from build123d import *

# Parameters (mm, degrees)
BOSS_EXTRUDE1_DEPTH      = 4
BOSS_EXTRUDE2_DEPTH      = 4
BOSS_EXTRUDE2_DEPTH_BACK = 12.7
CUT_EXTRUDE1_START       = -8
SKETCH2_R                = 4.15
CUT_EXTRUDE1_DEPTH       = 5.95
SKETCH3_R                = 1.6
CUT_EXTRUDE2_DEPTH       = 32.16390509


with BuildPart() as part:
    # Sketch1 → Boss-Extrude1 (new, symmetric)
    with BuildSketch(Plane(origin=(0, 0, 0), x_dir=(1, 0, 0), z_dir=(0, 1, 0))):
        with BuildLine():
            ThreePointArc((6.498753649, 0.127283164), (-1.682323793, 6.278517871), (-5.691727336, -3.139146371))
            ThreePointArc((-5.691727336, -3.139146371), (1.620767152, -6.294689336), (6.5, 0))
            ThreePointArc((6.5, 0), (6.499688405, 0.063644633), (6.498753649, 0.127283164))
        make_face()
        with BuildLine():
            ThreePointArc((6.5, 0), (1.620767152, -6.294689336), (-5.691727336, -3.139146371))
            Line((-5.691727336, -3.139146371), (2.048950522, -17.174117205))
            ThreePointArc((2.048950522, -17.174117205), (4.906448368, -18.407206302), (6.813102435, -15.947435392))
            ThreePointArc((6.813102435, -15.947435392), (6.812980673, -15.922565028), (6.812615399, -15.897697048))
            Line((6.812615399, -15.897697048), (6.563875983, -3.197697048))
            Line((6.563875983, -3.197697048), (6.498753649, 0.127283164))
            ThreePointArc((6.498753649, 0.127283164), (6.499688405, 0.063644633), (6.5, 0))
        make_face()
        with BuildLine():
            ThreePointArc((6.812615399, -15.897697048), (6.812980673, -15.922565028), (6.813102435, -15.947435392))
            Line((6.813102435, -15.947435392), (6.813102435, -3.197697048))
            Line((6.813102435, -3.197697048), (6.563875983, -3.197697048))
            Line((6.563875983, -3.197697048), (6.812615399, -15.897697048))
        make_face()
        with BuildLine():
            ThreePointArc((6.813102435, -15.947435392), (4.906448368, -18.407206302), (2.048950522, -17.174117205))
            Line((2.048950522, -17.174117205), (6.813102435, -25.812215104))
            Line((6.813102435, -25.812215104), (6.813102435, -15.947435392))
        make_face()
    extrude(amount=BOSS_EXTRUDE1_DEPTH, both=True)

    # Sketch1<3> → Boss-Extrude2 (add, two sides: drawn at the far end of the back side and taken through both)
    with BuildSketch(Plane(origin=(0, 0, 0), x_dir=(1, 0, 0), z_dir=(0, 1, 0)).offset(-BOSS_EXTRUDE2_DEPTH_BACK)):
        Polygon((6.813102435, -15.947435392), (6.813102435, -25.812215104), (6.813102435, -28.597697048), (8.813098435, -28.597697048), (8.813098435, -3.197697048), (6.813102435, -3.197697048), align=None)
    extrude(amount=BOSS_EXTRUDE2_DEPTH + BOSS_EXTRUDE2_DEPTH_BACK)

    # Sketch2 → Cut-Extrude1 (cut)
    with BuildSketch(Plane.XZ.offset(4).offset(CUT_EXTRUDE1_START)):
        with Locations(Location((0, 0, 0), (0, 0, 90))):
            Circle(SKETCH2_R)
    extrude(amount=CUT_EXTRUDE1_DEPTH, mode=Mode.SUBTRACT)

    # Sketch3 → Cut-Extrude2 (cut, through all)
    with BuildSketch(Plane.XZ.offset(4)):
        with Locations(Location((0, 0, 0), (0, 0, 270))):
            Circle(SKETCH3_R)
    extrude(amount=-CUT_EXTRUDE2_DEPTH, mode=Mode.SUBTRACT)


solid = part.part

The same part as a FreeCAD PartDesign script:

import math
import FreeCAD as App
import Part
import Sketcher
Q = App.Units.Quantity

doc = App.newDocument("Part")
body = doc.addObject("PartDesign::Body", "Body")

sketch1 = body.newObject("Sketcher::SketchObject", "Sketch")
sketch1.AttachmentSupport = (doc.getObject("XZ_Plane"), [""])
sketch1.MapMode = "FlatFace"
sketch1.addGeometry([
    Part.ArcOfCircle(Part.Circle(App.Vector(0, 0, 0), App.Vector(0, 0, 1), 6.5), math.radians(151), math.radians(359)),
    Part.LineSegment(App.Vector(-5.69, 3.14, 0), App.Vector(2.05, 17.17, 0)),
    Part.LineSegment(App.Vector(2.05, 17.17, 0), App.Vector(6.81, 25.81, 0)),
    Part.LineSegment(App.Vector(6.81, 25.81, 0), App.Vector(6.81, 3.2, 0)),
    Part.LineSegment(App.Vector(6.81, 3.2, 0), App.Vector(6.56, 3.2, 0)),
    Part.LineSegment(App.Vector(6.56, 3.2, 0), App.Vector(6.5, -0.13, 0)),
], False)
sketch1.addConstraint([
    Sketcher.Constraint("Tangent", 0, 1, 1, 1),
    Sketcher.Constraint("Coincident", 1, 2, 2, 1),
    Sketcher.Constraint("Coincident", 2, 2, 3, 1),
    Sketcher.Constraint("Coincident", 3, 2, 4, 1),
    Sketcher.Constraint("Coincident", 4, 2, 5, 1),
    Sketcher.Constraint("Tangent", 5, 2, 0, 2),
    Sketcher.Constraint("Vertical", 3),
    Sketcher.Constraint("Horizontal", 4),
    Sketcher.Constraint("Coincident", 0, 3, -1, 1),
    Sketcher.Constraint("Parallel", 1, 2),
    Sketcher.Constraint("Radius", 0, Q("6.5 mm")),
    Sketcher.Constraint("DistanceY", 3, 2, 3, 1, Q("22.614518 mm")),
    Sketcher.Constraint("DistanceY", 5, 2, 1, 2, Q("17.3014 mm")),
    Sketcher.Constraint("Distance", 2, Q("9.86478 mm")),
    Sketcher.Constraint("DistanceX", 4, 2, 4, 1, Q("0.249226 mm")),
    Sketcher.Constraint("DistanceX", -1, 1, 1, 2, Q("2.048951 mm")),
])
pad1 = body.newObject("PartDesign::Pad", "Pad")
pad1.Profile = sketch1
pad1.Length = 8
pad1.Midplane = True

sketch2 = body.newObject("Sketcher::SketchObject", "Sketch001")
sketch2.AttachmentSupport = (doc.getObject("XZ_Plane"), [""])
sketch2.MapMode = "FlatFace"
sketch2.addGeometry([
    Part.LineSegment(App.Vector(6.8, 28.6, 0), App.Vector(8.8, 28.6, 0)),
    Part.LineSegment(App.Vector(8.8, 28.6, 0), App.Vector(8.8, 3.2, 0)),
    Part.LineSegment(App.Vector(8.8, 3.2, 0), App.Vector(6.8, 3.2, 0)),
    Part.LineSegment(App.Vector(6.8, 3.2, 0), App.Vector(6.8, 28.6, 0)),
], False)
sketch2.addConstraint([
    Sketcher.Constraint("Coincident", 0, 2, 1, 1),
    Sketcher.Constraint("Coincident", 1, 2, 2, 1),
    Sketcher.Constraint("Coincident", 2, 2, 3, 1),
    Sketcher.Constraint("Coincident", 3, 2, 0, 1),
    Sketcher.Constraint("Horizontal", 0),
    Sketcher.Constraint("Vertical", 1),
    Sketcher.Constraint("Horizontal", 2),
    Sketcher.Constraint("Vertical", 3),
    Sketcher.Constraint("DistanceY", 1, 2, 1, 1, Q("25.4 mm")),
    Sketcher.Constraint("DistanceX", -1, 1, 0, 2, Q("8.813098 mm")),
    Sketcher.Constraint("DistanceX", 0, 1, 0, 2, Q("1.999996 mm")),
    Sketcher.Constraint("DistanceY", -1, 1, 0, 2, Q("28.597697 mm")),
])
pad2 = body.newObject("PartDesign::Pad", "Pad001")
pad2.Profile = sketch2
pad2.Type = "TwoLengths"
pad2.Length = 4
pad2.Length2 = 12.7
pad2.Reversed = True

sketch3 = body.newObject("Sketcher::SketchObject", "Sketch002")
sketch3.AttachmentSupport = (doc.getObject("XZ_Plane"), [""])
sketch3.MapMode = "FlatFace"
sketch3.AttachmentOffset = App.Placement(App.Vector(0, 0, -4), App.Rotation())
sketch3.addGeometry(Part.Circle(App.Vector(0, 0, 0), App.Vector(0, 0, 1), 4.2), False)
sketch3.addConstraint([
    Sketcher.Constraint("Coincident", 0, 3, -1, 1),
    Sketcher.Constraint("Diameter", 0, Q("8.3 mm")),
])
pocket1 = body.newObject("PartDesign::Pocket", "Pocket")
pocket1.Profile = sketch3
pocket1.Length = 5.95
pocket1.Reversed = True

sketch4 = body.newObject("Sketcher::SketchObject", "Sketch003")
sketch4.AttachmentSupport = (doc.getObject("XZ_Plane"), [""])
sketch4.MapMode = "FlatFace"
sketch4.AttachmentOffset = App.Placement(App.Vector(0, 0, 4), App.Rotation())
sketch4.addGeometry(Part.Circle(App.Vector(0, 0, 0), App.Vector(0, 0, 1), 1.6), False)
sketch4.addConstraint([
    Sketcher.Constraint("Coincident", 0, 3, -1, 1),
    Sketcher.Constraint("Diameter", 0, Q("3.2 mm")),
])
pocket2 = body.newObject("PartDesign::Pocket", "Pocket001")
pocket2.Profile = sketch4
pocket2.Type = "ThroughAll"

doc.recompute()
